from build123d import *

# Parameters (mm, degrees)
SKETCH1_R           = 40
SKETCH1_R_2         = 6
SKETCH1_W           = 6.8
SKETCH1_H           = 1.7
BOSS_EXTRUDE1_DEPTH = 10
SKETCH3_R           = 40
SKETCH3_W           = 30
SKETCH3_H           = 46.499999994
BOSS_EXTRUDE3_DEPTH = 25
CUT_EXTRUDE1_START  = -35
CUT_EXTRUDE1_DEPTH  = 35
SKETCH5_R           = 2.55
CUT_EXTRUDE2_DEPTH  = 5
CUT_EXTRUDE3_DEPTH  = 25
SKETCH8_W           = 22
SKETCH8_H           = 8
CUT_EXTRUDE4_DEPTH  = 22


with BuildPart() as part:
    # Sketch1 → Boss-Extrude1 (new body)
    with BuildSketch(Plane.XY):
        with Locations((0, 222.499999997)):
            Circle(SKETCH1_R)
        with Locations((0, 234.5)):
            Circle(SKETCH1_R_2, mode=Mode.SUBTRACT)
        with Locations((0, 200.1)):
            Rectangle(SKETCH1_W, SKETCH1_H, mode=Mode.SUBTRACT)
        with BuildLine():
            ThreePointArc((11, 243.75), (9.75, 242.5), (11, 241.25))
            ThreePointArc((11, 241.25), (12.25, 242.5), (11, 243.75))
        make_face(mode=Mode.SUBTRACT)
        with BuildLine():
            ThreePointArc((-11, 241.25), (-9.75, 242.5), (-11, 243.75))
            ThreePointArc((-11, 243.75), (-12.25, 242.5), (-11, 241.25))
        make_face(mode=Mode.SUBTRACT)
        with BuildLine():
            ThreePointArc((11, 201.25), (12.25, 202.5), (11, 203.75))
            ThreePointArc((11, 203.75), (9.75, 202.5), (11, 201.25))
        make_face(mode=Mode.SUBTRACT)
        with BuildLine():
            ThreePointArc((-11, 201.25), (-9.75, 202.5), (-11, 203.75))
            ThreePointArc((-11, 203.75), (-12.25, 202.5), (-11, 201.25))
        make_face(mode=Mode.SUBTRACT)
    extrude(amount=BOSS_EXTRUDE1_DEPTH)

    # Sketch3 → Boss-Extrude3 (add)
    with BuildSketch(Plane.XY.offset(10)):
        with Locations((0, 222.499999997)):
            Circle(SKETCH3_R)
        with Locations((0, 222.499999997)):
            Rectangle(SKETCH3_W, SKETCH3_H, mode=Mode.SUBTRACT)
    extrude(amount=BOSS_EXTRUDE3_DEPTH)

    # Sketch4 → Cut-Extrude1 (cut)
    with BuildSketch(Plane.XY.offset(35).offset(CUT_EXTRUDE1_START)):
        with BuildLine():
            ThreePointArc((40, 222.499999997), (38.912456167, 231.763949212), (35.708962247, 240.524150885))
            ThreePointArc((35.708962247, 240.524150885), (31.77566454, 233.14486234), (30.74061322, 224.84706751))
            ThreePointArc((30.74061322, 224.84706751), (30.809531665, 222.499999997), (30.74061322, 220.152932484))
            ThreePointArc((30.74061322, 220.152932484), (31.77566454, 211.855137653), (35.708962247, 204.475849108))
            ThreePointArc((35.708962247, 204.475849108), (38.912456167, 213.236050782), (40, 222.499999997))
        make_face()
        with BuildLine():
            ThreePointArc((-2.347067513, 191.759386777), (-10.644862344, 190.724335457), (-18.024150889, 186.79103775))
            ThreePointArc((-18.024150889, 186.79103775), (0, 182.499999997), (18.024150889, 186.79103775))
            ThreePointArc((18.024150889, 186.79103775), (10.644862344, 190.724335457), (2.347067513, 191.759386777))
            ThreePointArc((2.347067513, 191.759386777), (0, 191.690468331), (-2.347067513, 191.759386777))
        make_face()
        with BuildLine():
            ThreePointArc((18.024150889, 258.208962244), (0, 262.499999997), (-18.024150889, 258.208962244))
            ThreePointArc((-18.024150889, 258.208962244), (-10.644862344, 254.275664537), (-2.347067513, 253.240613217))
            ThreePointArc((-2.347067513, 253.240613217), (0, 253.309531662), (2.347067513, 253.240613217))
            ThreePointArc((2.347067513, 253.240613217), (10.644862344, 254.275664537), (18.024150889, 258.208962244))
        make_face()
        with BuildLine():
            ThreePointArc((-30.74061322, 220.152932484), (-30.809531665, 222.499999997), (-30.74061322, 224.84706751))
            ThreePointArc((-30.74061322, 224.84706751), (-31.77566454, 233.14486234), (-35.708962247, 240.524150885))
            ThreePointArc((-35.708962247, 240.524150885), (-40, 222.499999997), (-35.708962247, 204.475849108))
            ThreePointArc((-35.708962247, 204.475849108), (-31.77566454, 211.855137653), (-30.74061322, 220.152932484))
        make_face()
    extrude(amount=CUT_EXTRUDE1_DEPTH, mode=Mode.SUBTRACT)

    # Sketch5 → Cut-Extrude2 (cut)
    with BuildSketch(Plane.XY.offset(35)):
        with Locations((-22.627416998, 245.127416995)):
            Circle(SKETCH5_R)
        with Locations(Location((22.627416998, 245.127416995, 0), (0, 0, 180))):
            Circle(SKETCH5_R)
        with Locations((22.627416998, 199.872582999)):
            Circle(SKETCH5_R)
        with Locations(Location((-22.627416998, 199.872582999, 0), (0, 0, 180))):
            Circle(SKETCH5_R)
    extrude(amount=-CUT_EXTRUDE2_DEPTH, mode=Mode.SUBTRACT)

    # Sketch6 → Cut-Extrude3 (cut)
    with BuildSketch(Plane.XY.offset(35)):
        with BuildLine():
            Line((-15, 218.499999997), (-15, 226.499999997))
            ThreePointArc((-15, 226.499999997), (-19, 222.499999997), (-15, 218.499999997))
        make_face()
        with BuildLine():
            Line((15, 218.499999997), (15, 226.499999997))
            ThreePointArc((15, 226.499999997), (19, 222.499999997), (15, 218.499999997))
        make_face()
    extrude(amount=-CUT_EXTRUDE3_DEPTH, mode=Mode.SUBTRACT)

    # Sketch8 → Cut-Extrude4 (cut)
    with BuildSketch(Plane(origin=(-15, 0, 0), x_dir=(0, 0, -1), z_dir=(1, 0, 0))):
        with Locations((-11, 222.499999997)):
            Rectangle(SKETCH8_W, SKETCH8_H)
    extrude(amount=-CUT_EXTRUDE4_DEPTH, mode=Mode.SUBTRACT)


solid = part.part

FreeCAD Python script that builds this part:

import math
import FreeCAD as App
import Part
import Sketcher
from FreeCAD import Vector

doc = App.newDocument("Part")
body = doc.addObject("PartDesign::Body", "Body")

sketch1 = doc.addObject("Sketcher::SketchObject", "Sketch")
body.addObject(sketch1)
sketch1.AttachmentSupport = (doc.XY_Plane, [""])
sketch1.MapMode = "FlatFace"
sketch1.addGeometry([
    Part.Circle(Vector(0, 222.5, 0), Vector(0, 0, 1), 40),
    Part.Circle(Vector(-11, 202.5, 0), Vector(0, 0, 1), 1.25),
    Part.LineSegment(Vector(3.4, 199.25, 0), Vector(-3.4, 199.25, 0)),
    Part.LineSegment(Vector(-3.4, 199.25, 0), Vector(-3.4, 200.95, 0)),
    Part.LineSegment(Vector(-3.4, 200.95, 0), Vector(3.4, 200.95, 0)),
    Part.LineSegment(Vector(3.4, 200.95, 0), Vector(3.4, 199.25, 0)),
    Part.Circle(Vector(11, 202.5, 0), Vector(0, 0, 1), 1.25),
    Part.Circle(Vector(-11, 242.5, 0), Vector(0, 0, 1), 1.25),
    Part.Circle(Vector(0, 234.5, 0), Vector(0, 0, 1), 6),
    Part.Circle(Vector(11, 242.5, 0), Vector(0, 0, 1), 1.25),
], False)
sketch1.addConstraint([
    Sketcher.Constraint("Coincident", 2, 2, 3, 1),
    Sketcher.Constraint("Coincident", 3, 2, 4, 1),
    Sketcher.Constraint("Coincident", 4, 2, 5, 1),
    Sketcher.Constraint("Coincident", 5, 2, 2, 1),
    Sketcher.Constraint("Horizontal", 2),
    Sketcher.Constraint("Vertical", 3),
    Sketcher.Constraint("Horizontal", 4),
    Sketcher.Constraint("Vertical", 5),
    Sketcher.Constraint("Equal", 1, 6),
    Sketcher.Constraint("Equal", 6, 7),
    Sketcher.Constraint("Equal", 7, 9),
    Sketcher.Constraint("Symmetric", 1, 3, 6, 3, -2),
    Sketcher.Constraint("Symmetric", 7, 3, 9, 3, -2),
    Sketcher.Constraint("PointOnObject", 0, 3, -2),
    Sketcher.Constraint("PointOnObject", 8, 3, -2),
    Sketcher.Constraint("Vertical", 1, 3, 7, 3),
    Sketcher.Constraint("Diameter", 0, 80.0),
    Sketcher.Constraint("Diameter", 8, 12.0),
    Sketcher.Constraint("Diameter", 1, 2.5),
    Sketcher.Constraint("DistanceX", 2, 2, 2, 1, 6.8),
    Sketcher.Constraint("DistanceY", 3, 1, 3, 2, 1.7),
    Sketcher.Constraint("DistanceX", 1, 3, -1, 1, 11.0),
    Sketcher.Constraint("DistanceY", 1, 3, 0, 3, 20.0),
    Sketcher.Constraint("DistanceY", 0, 3, 7, 3, 20.0),
    Sketcher.Constraint("DistanceY", 0, 3, 8, 3, 12.0),
    Sketcher.Constraint("DistanceY", -1, 1, 0, 3, 222.5),
    Sketcher.Constraint("DistanceX", 2, 2, -1, 1, 3.4),
    Sketcher.Constraint("DistanceY", -1, 1, 2, 2, 199.25),
])
pad1 = doc.addObject("PartDesign::Pad", "Pad")
body.addObject(pad1)
pad1.Profile = sketch1
pad1.Length = 10

sketch2 = doc.addObject("Sketcher::SketchObject", "Sketch001")
body.addObject(sketch2)
sketch2.AttachmentSupport = (doc.XY_Plane, [""])
sketch2.MapMode = "FlatFace"
sketch2.AttachmentOffset = App.Placement(Vector(0, 0, 10), App.Rotation())
sketch2.addGeometry([
    Part.Circle(Vector(0, 222.5, 0), Vector(0, 0, 1), 40),
    Part.LineSegment(Vector(15, 199.25, 0), Vector(-15, 199.25, 0)),
    Part.LineSegment(Vector(-15, 199.25, 0), Vector(-15, 245.75, 0)),
    Part.LineSegment(Vector(-15, 245.75, 0), Vector(15, 245.75, 0)),
    Part.LineSegment(Vector(15, 245.75, 0), Vector(15, 199.25, 0)),
], False)
sketch2.addConstraint([
    Sketcher.Constraint("Coincident", 1, 2, 2, 1),
    Sketcher.Constraint("Coincident", 2, 2, 3, 1),
    Sketcher.Constraint("Coincident", 3, 2, 4, 1),
    Sketcher.Constraint("Coincident", 4, 2, 1, 1),
    Sketcher.Constraint("Horizontal", 1),
    Sketcher.Constraint("Vertical", 2),
    Sketcher.Constraint("Horizontal", 3),
    Sketcher.Constraint("Vertical", 4),
    Sketcher.Constraint("PointOnObject", 0, 3, -2),
    Sketcher.Constraint("Diameter", 0, 80.0),
    Sketcher.Constraint("DistanceX", 1, 2, 1, 1, 30.0),
    Sketcher.Constraint("DistanceY", 2, 1, 2, 2, 46.5),
    Sketcher.Constraint("DistanceX", 1, 2, -1, 1, 15.0),
    Sketcher.Constraint("DistanceY", -1, 1, 0, 3, 222.5),
    Sketcher.Constraint("DistanceY", -1, 1, 1, 2, 199.25),
])
pad2 = doc.addObject("PartDesign::Pad", "Pad001")
body.addObject(pad2)
pad2.Profile = sketch2
pad2.Length = 25

sketch3 = doc.addObject("Sketcher::SketchObject", "Sketch002")
body.addObject(sketch3)
sketch3.AttachmentSupport = (doc.XY_Plane, [""])
sketch3.MapMode = "FlatFace"
sketch3.addGeometry([
    Part.ArcOfCircle(Part.Circle(Vector(0, 222.5, 0), Vector(0, 0, 1), 40), math.radians(0), math.radians(26.782428)),
    Part.ArcOfCircle(Part.Circle(Vector(53.700196, 226.196585, 0), Vector(0, 0, 1), 22.999209), math.radians(141.467456), math.radians(183.363859)),
    Part.ArcOfCircle(Part.Circle(Vector(-9.190469, 222.5, 0), Vector(0, 0, 1), 40), math.radians(-3.363859), math.radians(3.363859)),
    Part.ArcOfCircle(Part.Circle(Vector(53.700196, 218.803415, 0), Vector(0, 0, 1), 22.999209), math.radians(176.636141), math.radians(218.532544)),
    Part.ArcOfCircle(Part.Circle(Vector(0, 222.5, 0), Vector(0, 0, 1), 40), math.radians(-26.782428), math.radians(0)),
    Part.ArcOfCircle(Part.Circle(Vector(-3.696585, 168.799804, 0), Vector(0, 0, 1), 22.999209), math.radians(86.636141), math.radians(128.532544)),
    Part.ArcOfCircle(Part.Circle(Vector(0, 222.5, 0), Vector(0, 0, 1), 40), math.radians(-116.782428), math.radians(-63.217572)),
    Part.ArcOfCircle(Part.Circle(Vector(3.696585, 168.799804, 0), Vector(0, 0, 1), 22.999209), math.radians(51.467456), math.radians(93.363859)),
    Part.ArcOfCircle(Part.Circle(Vector(0, 231.690468, 0), Vector(0, 0, 1), 40), math.radians(-93.363859), math.radians(-86.636141)),
    Part.ArcOfCircle(Part.Circle(Vector(0, 222.5, 0), Vector(0, 0, 1), 40), math.radians(63.217572), math.radians(116.782428)),
    Part.ArcOfCircle(Part.Circle(Vector(-3.696585, 276.200196, 0), Vector(0, 0, 1), 22.999209), math.radians(-128.532544), math.radians(-86.636141)),
    Part.ArcOfCircle(Part.Circle(Vector(0, 213.309531, 0), Vector(0, 0, 1), 40), math.radians(86.636141), math.radians(93.363859)),
    Part.ArcOfCircle(Part.Circle(Vector(3.696585, 276.200196, 0), Vector(0, 0, 1), 22.999209), math.radians(-93.363859), math.radians(-51.467456)),
    Part.ArcOfCircle(Part.Circle(Vector(9.190469, 222.5, 0), Vector(0, 0, 1), 40), math.radians(176.636141), math.radians(183.363859)),
    Part.ArcOfCircle(Part.Circle(Vector(-53.700196, 226.196585, 0), Vector(0, 0, 1), 22.999209), math.radians(-3.363859), math.radians(38.532544)),
    Part.ArcOfCircle(Part.Circle(Vector(0, 222.5, 0), Vector(0, 0, 1), 40), math.radians(153.217572), math.radians(206.782428)),
    Part.ArcOfCircle(Part.Circle(Vector(-53.700196, 218.803415, 0), Vector(0, 0, 1), 22.999209), math.radians(-38.532544), math.radians(3.363859)),
], False)
sketch3.addConstraint([
    Sketcher.Constraint("Coincident", 0, 2, 1, 1),
    Sketcher.Constraint("Tangent", 1, 2, 2, 2),
    Sketcher.Constraint("Tangent", 2, 1, 3, 1),
    Sketcher.Constraint("Coincident", 3, 2, 4, 1),
    Sketcher.Constraint("Tangent", 4, 2, 0, 1),
    Sketcher.Constraint("Coincident", 5, 2, 6, 1),
    Sketcher.Constraint("Coincident", 6, 2, 7, 1),
    Sketcher.Constraint("Tangent", 7, 2, 8, 2),
    Sketcher.Constraint("Tangent", 8, 1, 5, 1),
    Sketcher.Constraint("Coincident", 9, 2, 10, 1),
    Sketcher.Constraint("Tangent", 10, 2, 11, 2),
    Sketcher.Constraint("Tangent", 11, 1, 12, 1),
    Sketcher.Constraint("Coincident", 12, 2, 9, 1),
    Sketcher.Constraint("Tangent", 13, 1, 14, 1),
    Sketcher.Constraint("Coincident", 14, 2, 15, 1),
    Sketcher.Constraint("Coincident", 15, 2, 16, 1),
    Sketcher.Constraint("Tangent", 16, 2, 13, 2),
    Sketcher.Constraint("Coincident", 6, 3, 0, 3),
    Sketcher.Constraint("Coincident", 9, 3, 0, 3),
    Sketcher.Constraint("Coincident", 15, 3, 0, 3),
    Sketcher.Constraint("Equal", 0, 2),
    Sketcher.Constraint("Equal", 1, 3),
    Sketcher.Constraint("Equal", 2, 4),
    Sketcher.Constraint("Equal", 3, 5),
    Sketcher.Constraint("Equal", 4, 6),
    Sketcher.Constraint("Equal", 5, 7),
    Sketcher.Constraint("Equal", 6, 8),
    Sketcher.Constraint("Equal", 8, 9),
    Sketcher.Constraint("Equal", 7, 10),
    Sketcher.Constraint("Equal", 9, 11),
    Sketcher.Constraint("Equal", 10, 12),
    Sketcher.Constraint("Equal", 11, 13),
    Sketcher.Constraint("Equal", 12, 14),
    Sketcher.Constraint("Equal", 13, 15),
    Sketcher.Constraint("Equal", 14, 16),
    Sketcher.Constraint("Symmetric", 5, 3, 7, 3, -2),
    Sketcher.Constraint("Symmetric", 10, 3, 12, 3, -2),
    Sketcher.Constraint("Symmetric", 2, 3, 13, 3, -2),
    Sketcher.Constraint("Symmetric", 0, 2, 14, 2, -2),
    Sketcher.Constraint("Horizontal", 0, 3, 2, 3),
    Sketcher.Constraint("Horizontal", 3, 3, 16, 3),
    Sketcher.Constraint("Horizontal", 15, 3, 4, 2),
    Sketcher.Constraint("Vertical", 1, 3, 3, 3),
    Sketcher.Constraint("Vertical", 5, 3, 10, 3),
    Sketcher.Constraint("Vertical", 5, 2, 9, 2),
    Sketcher.Constraint("Radius", 0, 40.0),
    Sketcher.Constraint("DistanceY", -1, 1, 0, 3, 222.5),
    Sketcher.Constraint("Radius", 1, 22.999209),
    Sketcher.Constraint("DistanceX", 2, 3, -1, 1, 9.190469),
    Sketcher.Constraint("DistanceY", -1, 1, 8, 3, 231.690468),
    Sketcher.Constraint("DistanceY", -1, 1, 0, 2, 240.524151),
    Sketcher.Constraint("DistanceX", 5, 2, -1, 1, 18.024151),
])
pocket1 = doc.addObject("PartDesign::Pocket", "Pocket")
body.addObject(pocket1)
pocket1.Profile = sketch3
pocket1.Length = 35
pocket1.Reversed = True

sketch4 = doc.addObject("Sketcher::SketchObject", "Sketch003")
body.addObject(sketch4)
sketch4.AttachmentSupport = (doc.XY_Plane, [""])
sketch4.MapMode = "FlatFace"
sketch4.AttachmentOffset = App.Placement(Vector(0, 0, 35), App.Rotation())
sketch4.addGeometry([
    Part.Circle(Vector(-22.627417, 245.127417, 0), Vector(0, 0, 1), 2.55),
    Part.Circle(Vector(22.627417, 245.127417, 0), Vector(0, 0, 1), 2.55),
    Part.Circle(Vector(22.627417, 199.872583, 0), Vector(0, 0, 1), 2.55),
    Part.Circle(Vector(-22.627417, 199.872583, 0), Vector(0, 0, 1), 2.55),
], False)
sketch4.addConstraint([
    Sketcher.Constraint("Equal", 0, 1),
    Sketcher.Constraint("Equal", 1, 2),
    Sketcher.Constraint("Equal", 2, 3),
    Sketcher.Constraint("Symmetric", 0, 3, 1, 3, -2),
    Sketcher.Constraint("Symmetric", 2, 3, 3, 3, -2),
    Sketcher.Constraint("Vertical", 1, 3, 2, 3),
    Sketcher.Constraint("Diameter", 0, 5.1),
    Sketcher.Constraint("DistanceX", 0, 3, -1, 1, 22.627417),
    Sketcher.Constraint("DistanceY", -1, 1, 0, 3, 245.127417),
    Sketcher.Constraint("DistanceY", -1, 1, 2, 3, 199.872583),
])
pocket2 = doc.addObject("PartDesign::Pocket", "Pocket001")
body.addObject(pocket2)
pocket2.Profile = sketch4
pocket2.Length = 5

sketch5 = doc.addObject("Sketcher::SketchObject", "Sketch004")
body.addObject(sketch5)
sketch5.AttachmentSupport = (doc.XY_Plane, [""])
sketch5.MapMode = "FlatFace"
sketch5.AttachmentOffset = App.Placement(Vector(0, 0, 35), App.Rotation())
sketch5.addGeometry([
    Part.LineSegment(Vector(-15, 218.5, 0), Vector(-15, 226.5, 0)),
    Part.ArcOfCircle(Part.Circle(Vector(-15, 222.5, 0), Vector(0, 0, 1), 4), math.radians(90), math.radians(270)),
    Part.LineSegment(Vector(15, 226.5, 0), Vector(15, 218.5, 0)),
    Part.ArcOfCircle(Part.Circle(Vector(15, 222.5, 0), Vector(0, 0, 1), 4), math.radians(-90), math.radians(90)),
], False)
sketch5.addConstraint([
    Sketcher.Constraint("Coincident", 0, 1, 1, 2),
    Sketcher.Constraint("Coincident", 1, 1, 0, 2),
    Sketcher.Constraint("Coincident", 2, 1, 3, 2),
    Sketcher.Constraint("Coincident", 3, 1, 2, 2),
    Sketcher.Constraint("Vertical", 0),
    Sketcher.Constraint("Vertical", 2),
    Sketcher.Constraint("Equal", 1, 3),
    Sketcher.Constraint("Symmetric", 1, 3, 3, 3, -2),
    Sketcher.Constraint("Vertical", 1, 3, 0, 1),
    Sketcher.Constraint("Vertical", 3, 3, 2, 1),
    Sketcher.Constraint("Radius", 1, 4.0),
    Sketcher.Constraint("DistanceX", 1, 3, -1, 1, 15.0),
    Sketcher.Constraint("DistanceY", -1, 1, 1, 3, 222.5),
])
pocket3 = doc.addObject("PartDesign::Pocket", "Pocket002")
body.addObject(pocket3)
pocket3.Profile = sketch5
pocket3.Length = 25

sketch6 = doc.addObject("Sketcher::SketchObject", "Sketch005")
body.addObject(sketch6)
sketch6.AttachmentSupport = (doc.YZ_Plane, [""])
sketch6.MapMode = "FlatFace"
sketch6.AttachmentOffset = App.Placement(Vector(0, 0, -15), App.Rotation())
sketch6.addGeometry([
    Part.LineSegment(Vector(226.5, 22, 0), Vector(218.5, 22, 0)),
    Part.LineSegment(Vector(218.5, 22, 0), Vector(218.5, 0, 0)),
    Part.LineSegment(Vector(218.5, 0, 0), Vector(226.5, 0, 0)),
    Part.LineSegment(Vector(226.5, 0, 0), Vector(226.5, 22, 0)),
], False)
sketch6.addConstraint([
    Sketcher.Constraint("Coincident", 0, 2, 1, 1),
    Sketcher.Constraint("Coincident", 1, 2, 2, 1),
    Sketcher.Constraint("Coincident", 2, 2, 3, 1),
    Sketcher.Constraint("Coincident", 3, 2, 0, 1),
    Sketcher.Constraint("Horizontal", 0),
    Sketcher.Constraint("Vertical", 1),
    Sketcher.Constraint("Horizontal", 2),
    Sketcher.Constraint("Vertical", 3),
    Sketcher.Constraint("PointOnObject", 1, 2, -1),
    Sketcher.Constraint("DistanceX", 0, 2, 0, 1, 8.0),
    Sketcher.Constraint("DistanceY", 1, 2, 1, 1, 22.0),
    Sketcher.Constraint("DistanceX", -1, 1, 0, 2, 218.5),
])
pocket4 = doc.addObject("PartDesign::Pocket", "Pocket003")
body.addObject(pocket4)
pocket4.Profile = sketch6
pocket4.Length = 22

doc.recompute()
